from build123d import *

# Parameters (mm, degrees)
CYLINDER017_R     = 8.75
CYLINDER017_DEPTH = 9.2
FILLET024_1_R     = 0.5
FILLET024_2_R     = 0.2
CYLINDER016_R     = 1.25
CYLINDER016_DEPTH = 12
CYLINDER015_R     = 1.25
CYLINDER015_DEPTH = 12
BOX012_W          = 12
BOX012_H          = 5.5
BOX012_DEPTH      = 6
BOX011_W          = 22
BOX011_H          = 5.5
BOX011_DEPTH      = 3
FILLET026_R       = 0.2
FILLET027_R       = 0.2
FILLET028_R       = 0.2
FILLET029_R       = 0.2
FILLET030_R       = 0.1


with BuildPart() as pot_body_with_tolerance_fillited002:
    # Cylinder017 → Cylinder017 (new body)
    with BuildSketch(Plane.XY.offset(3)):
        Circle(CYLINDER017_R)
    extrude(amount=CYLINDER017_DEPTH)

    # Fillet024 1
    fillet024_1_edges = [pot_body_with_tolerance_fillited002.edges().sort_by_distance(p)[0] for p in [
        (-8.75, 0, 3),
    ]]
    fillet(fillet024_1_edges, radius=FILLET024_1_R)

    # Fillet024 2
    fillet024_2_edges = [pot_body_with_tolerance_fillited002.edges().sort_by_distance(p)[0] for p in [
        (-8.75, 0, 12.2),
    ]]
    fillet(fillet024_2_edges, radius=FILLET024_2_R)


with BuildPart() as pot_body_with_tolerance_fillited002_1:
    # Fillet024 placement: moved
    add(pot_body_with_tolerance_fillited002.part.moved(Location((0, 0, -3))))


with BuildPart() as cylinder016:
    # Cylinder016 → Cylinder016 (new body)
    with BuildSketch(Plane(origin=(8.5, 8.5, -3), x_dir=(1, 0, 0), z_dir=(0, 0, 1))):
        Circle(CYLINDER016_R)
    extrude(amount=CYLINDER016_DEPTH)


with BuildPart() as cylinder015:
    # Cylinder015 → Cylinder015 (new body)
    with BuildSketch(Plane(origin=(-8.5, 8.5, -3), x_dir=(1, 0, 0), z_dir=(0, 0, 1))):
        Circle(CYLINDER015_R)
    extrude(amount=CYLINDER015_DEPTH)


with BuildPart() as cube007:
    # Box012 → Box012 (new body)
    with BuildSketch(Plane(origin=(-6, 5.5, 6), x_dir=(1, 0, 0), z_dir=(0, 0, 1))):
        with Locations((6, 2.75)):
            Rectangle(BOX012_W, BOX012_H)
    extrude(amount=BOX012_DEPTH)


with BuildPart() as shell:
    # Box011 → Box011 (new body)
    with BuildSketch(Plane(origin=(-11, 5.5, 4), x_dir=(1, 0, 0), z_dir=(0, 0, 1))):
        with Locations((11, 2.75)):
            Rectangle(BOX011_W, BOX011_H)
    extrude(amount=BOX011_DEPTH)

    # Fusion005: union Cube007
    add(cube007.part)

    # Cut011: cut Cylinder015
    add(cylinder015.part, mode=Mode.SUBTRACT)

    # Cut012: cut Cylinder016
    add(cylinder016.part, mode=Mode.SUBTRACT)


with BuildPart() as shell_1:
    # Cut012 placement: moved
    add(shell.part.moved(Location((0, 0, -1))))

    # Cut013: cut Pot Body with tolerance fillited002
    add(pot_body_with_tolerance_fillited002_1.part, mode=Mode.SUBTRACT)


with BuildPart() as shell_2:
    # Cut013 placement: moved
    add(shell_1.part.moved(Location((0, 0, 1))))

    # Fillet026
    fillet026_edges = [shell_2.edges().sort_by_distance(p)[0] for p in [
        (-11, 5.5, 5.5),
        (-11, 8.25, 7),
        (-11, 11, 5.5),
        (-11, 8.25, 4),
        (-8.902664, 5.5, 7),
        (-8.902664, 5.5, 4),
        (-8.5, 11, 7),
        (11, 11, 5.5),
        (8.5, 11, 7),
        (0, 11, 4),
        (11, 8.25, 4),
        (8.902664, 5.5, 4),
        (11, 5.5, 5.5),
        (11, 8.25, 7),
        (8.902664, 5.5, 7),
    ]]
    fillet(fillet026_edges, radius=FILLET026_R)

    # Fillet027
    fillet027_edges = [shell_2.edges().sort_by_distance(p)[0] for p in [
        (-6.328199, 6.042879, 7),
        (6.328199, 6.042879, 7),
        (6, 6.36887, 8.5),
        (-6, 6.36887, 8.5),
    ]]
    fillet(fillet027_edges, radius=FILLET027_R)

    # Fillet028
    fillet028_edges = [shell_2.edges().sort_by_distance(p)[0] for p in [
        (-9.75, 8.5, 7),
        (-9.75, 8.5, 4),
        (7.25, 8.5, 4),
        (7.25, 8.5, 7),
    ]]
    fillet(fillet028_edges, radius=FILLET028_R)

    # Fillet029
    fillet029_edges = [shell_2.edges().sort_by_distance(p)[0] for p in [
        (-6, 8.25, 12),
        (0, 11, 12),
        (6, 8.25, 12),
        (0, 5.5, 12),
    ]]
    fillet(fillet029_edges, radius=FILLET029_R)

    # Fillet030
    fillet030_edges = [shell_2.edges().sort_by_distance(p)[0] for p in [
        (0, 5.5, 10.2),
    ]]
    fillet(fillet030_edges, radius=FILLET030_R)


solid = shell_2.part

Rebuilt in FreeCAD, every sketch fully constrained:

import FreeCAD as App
import Part
import Sketcher
from FreeCAD import Vector


def edges_at(feature, points):
    """Names of the edges that pass closest to the given points."""
    edges = feature.Shape.Edges
    near = lambda p: min(range(len(edges)), key=lambda i: edges[i].distToShape(Part.Vertex(*p))[0])
    return sorted({f"Edge{near(p) + 1}" for p in points})

doc = App.newDocument("Part")
body = doc.addObject("PartDesign::Body", "Body")

# Sketch on XY plane
sketch1 = body.newObject("Sketcher::SketchObject", "Sketch")
sketch1.AttachmentSupport = (doc.getObject("XY_Plane"), [""])
sketch1.MapMode = "FlatFace"
sketch1.AttachmentOffset = App.Placement(Vector(0, 0, 3), App.Rotation())
sketch1.addGeometry(Part.Circle(Vector(0, 0, 0), Vector(0, 0, 1), 9), False)
sketch1.addConstraint(Sketcher.Constraint("Coincident", 0, 3, -1, 1))
sketch1.addConstraint(Sketcher.Constraint("Diameter", 0, 17.5))
pad1 = body.newObject("PartDesign::Pad", "Pad")
pad1.Profile = sketch1
pad1.Length = 9.2
doc.recompute()

fillet = body.newObject("PartDesign::Fillet", "Fillet")
fillet.Base = (pad1, edges_at(pad1, [(-8.75, 0, 3)]))
fillet.Radius = 0.5
doc.recompute()

fillet2 = body.newObject("PartDesign::Fillet", "Fillet001")
fillet2.Base = (fillet, edges_at(fillet, [(-8.75, 0, 12.2)]))
fillet2.Radius = 0.2
body2 = doc.addObject("PartDesign::Body", "Body001")
doc.recompute()

body.Placement = App.Placement(Vector(0, 0, -3), App.Rotation(Vector(0, 0, 1), 0))
boolean = body2.newObject("PartDesign::Boolean", "Boolean")
boolean.Type = "Fuse"
boolean.addObjects([body])
body3 = doc.addObject("PartDesign::Body", "Body002")

# Sketch on XY plane
sketch2 = body3.newObject("Sketcher::SketchObject", "Sketch001")
sketch2.AttachmentSupport = (doc.getObject("XY_Plane002"), [""])
sketch2.MapMode = "FlatFace"
sketch2.AttachmentOffset = App.Placement(Vector(0, 0, -3), App.Rotation())
sketch2.addGeometry(Part.Circle(Vector(8.5, 8.5, 0), Vector(0, 0, 1), 1.2), False)
sketch2.addConstraint(Sketcher.Constraint("Diameter", 0, 2.5))
sketch2.addConstraint(Sketcher.Constraint("DistanceX", -1, 1, 0, 3, 8.5))
sketch2.addConstraint(Sketcher.Constraint("DistanceY", -1, 1, 0, 3, 8.5))
pad2 = body3.newObject("PartDesign::Pad", "Pad001")
pad2.Profile = sketch2
pad2.Length = 12
body4 = doc.addObject("PartDesign::Body", "Body003")

# Sketch on XY plane
sketch3 = body4.newObject("Sketcher::SketchObject", "Sketch002")
sketch3.AttachmentSupport = (doc.getObject("XY_Plane003"), [""])
sketch3.MapMode = "FlatFace"
sketch3.AttachmentOffset = App.Placement(Vector(0, 0, -3), App.Rotation())
sketch3.addGeometry(Part.Circle(Vector(-8.5, 8.5, 0), Vector(0, 0, 1), 1.2), False)
sketch3.addConstraint(Sketcher.Constraint("Diameter", 0, 2.5))
sketch3.addConstraint(Sketcher.Constraint("DistanceX", 0, 3, -1, 1, 8.5))
sketch3.addConstraint(Sketcher.Constraint("DistanceY", -1, 1, 0, 3, 8.5))
pad3 = body4.newObject("PartDesign::Pad", "Pad002")
pad3.Profile = sketch3
pad3.Length = 12
body5 = doc.addObject("PartDesign::Body", "Body004")

# Sketch on XY plane
sketch4 = body5.newObject("Sketcher::SketchObject", "Sketch003")
sketch4.AttachmentSupport = (doc.getObject("XY_Plane004"), [""])
sketch4.MapMode = "FlatFace"
sketch4.AttachmentOffset = App.Placement(Vector(0, 0, 6), App.Rotation())
sketch4.addGeometry(Part.LineSegment(Vector(-6, 11, 0), Vector(-6, 6, 0)), False)
sketch4.addGeometry(Part.LineSegment(Vector(-6, 6, 0), Vector(6, 6, 0)), False)
sketch4.addGeometry(Part.LineSegment(Vector(6, 6, 0), Vector(6, 11, 0)), False)
sketch4.addGeometry(Part.LineSegment(Vector(6, 11, 0), Vector(-6, 11, 0)), False)
sketch4.addConstraint(Sketcher.Constraint("Coincident", 0, 2, 1, 1))
sketch4.addConstraint(Sketcher.Constraint("Coincident", 1, 2, 2, 1))
sketch4.addConstraint(Sketcher.Constraint("Coincident", 2, 2, 3, 1))
sketch4.addConstraint(Sketcher.Constraint("Coincident", 3, 2, 0, 1))
sketch4.addConstraint(Sketcher.Constraint("Vertical", 0))
sketch4.addConstraint(Sketcher.Constraint("Horizontal", 1))
sketch4.addConstraint(Sketcher.Constraint("Vertical", 2))
sketch4.addConstraint(Sketcher.Constraint("Horizontal", 3))
sketch4.addConstraint(Sketcher.Constraint("DistanceX", 1, 1, 1, 2, 12.0))
sketch4.addConstraint(Sketcher.Constraint("DistanceY", 0, 2, 0, 1, 5.5))
sketch4.addConstraint(Sketcher.Constraint("DistanceX", 0, 2, -1, 1, 6.0))
sketch4.addConstraint(Sketcher.Constraint("DistanceY", -1, 1, 2, 2, 11.0))
pad4 = body5.newObject("PartDesign::Pad", "Pad003")
pad4.Profile = sketch4
pad4.Length = 6
body6 = doc.addObject("PartDesign::Body", "Body005")

# Sketch on XY plane
sketch5 = body6.newObject("Sketcher::SketchObject", "Sketch004")
sketch5.AttachmentSupport = (doc.getObject("XY_Plane005"), [""])
sketch5.MapMode = "FlatFace"
sketch5.AttachmentOffset = App.Placement(Vector(0, 0, 4), App.Rotation())
sketch5.addGeometry(Part.LineSegment(Vector(-11, 11, 0), Vector(-11, 6, 0)), False)
sketch5.addGeometry(Part.LineSegment(Vector(-11, 6, 0), Vector(11, 6, 0)), False)
sketch5.addGeometry(Part.LineSegment(Vector(11, 6, 0), Vector(11, 11, 0)), False)
sketch5.addGeometry(Part.LineSegment(Vector(11, 11, 0), Vector(-11, 11, 0)), False)
sketch5.addConstraint(Sketcher.Constraint("Coincident", 0, 2, 1, 1))
sketch5.addConstraint(Sketcher.Constraint("Coincident", 1, 2, 2, 1))
sketch5.addConstraint(Sketcher.Constraint("Coincident", 2, 2, 3, 1))
sketch5.addConstraint(Sketcher.Constraint("Coincident", 3, 2, 0, 1))
sketch5.addConstraint(Sketcher.Constraint("Vertical", 0))
sketch5.addConstraint(Sketcher.Constraint("Horizontal", 1))
sketch5.addConstraint(Sketcher.Constraint("Vertical", 2))
sketch5.addConstraint(Sketcher.Constraint("Horizontal", 3))
sketch5.addConstraint(Sketcher.Constraint("DistanceX", 1, 1, 1, 2, 22.0))
sketch5.addConstraint(Sketcher.Constraint("DistanceY", 0, 2, 0, 1, 5.5))
sketch5.addConstraint(Sketcher.Constraint("DistanceX", 0, 2, -1, 1, 11.0))
sketch5.addConstraint(Sketcher.Constraint("DistanceY", -1, 1, 2, 2, 11.0))
pad5 = body6.newObject("PartDesign::Pad", "Pad004")
pad5.Profile = sketch5
pad5.Length = 3
doc.recompute()

boolean2 = body6.newObject("PartDesign::Boolean", "Boolean001")
boolean2.Type = "Fuse"
boolean2.addObjects([body5])
doc.recompute()

boolean3 = body6.newObject("PartDesign::Boolean", "Boolean002")
boolean3.Type = "Cut"
boolean3.addObjects([body4])
doc.recompute()

boolean4 = body6.newObject("PartDesign::Boolean", "Boolean003")
boolean4.Type = "Cut"
boolean4.addObjects([body3])
body7 = doc.addObject("PartDesign::Body", "Body006")
doc.recompute()

body6.Placement = App.Placement(Vector(0, 0, -1), App.Rotation(Vector(0, 0, 1), 0))
boolean5 = body7.newObject("PartDesign::Boolean", "Boolean004")
boolean5.Type = "Fuse"
boolean5.addObjects([body6])
doc.recompute()

boolean6 = body7.newObject("PartDesign::Boolean", "Boolean005")
boolean6.Type = "Cut"
boolean6.addObjects([body2])
body8 = doc.addObject("PartDesign::Body", "Body007")
doc.recompute()

body7.Placement = App.Placement(Vector(0, 0, 1), App.Rotation(Vector(0, 0, 1), 0))
boolean7 = body8.newObject("PartDesign::Boolean", "Boolean006")
boolean7.Type = "Fuse"
boolean7.addObjects([body7])
doc.recompute()

fillet3 = body8.newObject("PartDesign::Fillet", "Fillet002")
fillet3.Base = (boolean7, edges_at(boolean7, [
    (-11, 5.5, 5.5),
    (-11, 8.25, 7),
    (-11, 11, 5.5),
    (-11, 8.25, 4),
    (-8.903, 5.5, 7),
    (-8.903, 5.5, 4),
    (-8.5, 11, 7),
    (11, 11, 5.5),
    (8.5, 11, 7),
    (0, 11, 4),
    (11, 8.25, 4),
    (8.903, 5.5, 4),
    (11, 5.5, 5.5),
    (11, 8.25, 7),
    (8.903, 5.5, 7),
]))
fillet3.Radius = 0.2
doc.recompute()

fillet4 = body8.newObject("PartDesign::Fillet", "Fillet003")
fillet4.Base = (fillet3, edges_at(fillet3, [
    (-6.328, 6.043, 7),
    (6.328, 6.043, 7),
    (6, 6.369, 8.5),
    (-6, 6.369, 8.5),
]))
fillet4.Radius = 0.2
doc.recompute()

fillet5 = body8.newObject("PartDesign::Fillet", "Fillet004")
fillet5.Base = (fillet4, edges_at(fillet4, [
    (-9.75, 8.5, 7),
    (-9.75, 8.5, 4),
    (7.25, 8.5, 4),
    (7.25, 8.5, 7),
]))
fillet5.Radius = 0.2
doc.recompute()

fillet6 = body8.newObject("PartDesign::Fillet", "Fillet005")
fillet6.Base = (fillet5, edges_at(fillet5, [
    (-6, 8.25, 12),
    (0, 11, 12),
    (6, 8.25, 12),
    (0, 5.5, 12),
]))
fillet6.Radius = 0.2
doc.recompute()

fillet7 = body8.newObject("PartDesign::Fillet", "Fillet006")
fillet7.Base = (fillet6, edges_at(fillet6, [(0, 5.5, 10.2)]))
fillet7.Radius = 0.1

doc.recompute()
